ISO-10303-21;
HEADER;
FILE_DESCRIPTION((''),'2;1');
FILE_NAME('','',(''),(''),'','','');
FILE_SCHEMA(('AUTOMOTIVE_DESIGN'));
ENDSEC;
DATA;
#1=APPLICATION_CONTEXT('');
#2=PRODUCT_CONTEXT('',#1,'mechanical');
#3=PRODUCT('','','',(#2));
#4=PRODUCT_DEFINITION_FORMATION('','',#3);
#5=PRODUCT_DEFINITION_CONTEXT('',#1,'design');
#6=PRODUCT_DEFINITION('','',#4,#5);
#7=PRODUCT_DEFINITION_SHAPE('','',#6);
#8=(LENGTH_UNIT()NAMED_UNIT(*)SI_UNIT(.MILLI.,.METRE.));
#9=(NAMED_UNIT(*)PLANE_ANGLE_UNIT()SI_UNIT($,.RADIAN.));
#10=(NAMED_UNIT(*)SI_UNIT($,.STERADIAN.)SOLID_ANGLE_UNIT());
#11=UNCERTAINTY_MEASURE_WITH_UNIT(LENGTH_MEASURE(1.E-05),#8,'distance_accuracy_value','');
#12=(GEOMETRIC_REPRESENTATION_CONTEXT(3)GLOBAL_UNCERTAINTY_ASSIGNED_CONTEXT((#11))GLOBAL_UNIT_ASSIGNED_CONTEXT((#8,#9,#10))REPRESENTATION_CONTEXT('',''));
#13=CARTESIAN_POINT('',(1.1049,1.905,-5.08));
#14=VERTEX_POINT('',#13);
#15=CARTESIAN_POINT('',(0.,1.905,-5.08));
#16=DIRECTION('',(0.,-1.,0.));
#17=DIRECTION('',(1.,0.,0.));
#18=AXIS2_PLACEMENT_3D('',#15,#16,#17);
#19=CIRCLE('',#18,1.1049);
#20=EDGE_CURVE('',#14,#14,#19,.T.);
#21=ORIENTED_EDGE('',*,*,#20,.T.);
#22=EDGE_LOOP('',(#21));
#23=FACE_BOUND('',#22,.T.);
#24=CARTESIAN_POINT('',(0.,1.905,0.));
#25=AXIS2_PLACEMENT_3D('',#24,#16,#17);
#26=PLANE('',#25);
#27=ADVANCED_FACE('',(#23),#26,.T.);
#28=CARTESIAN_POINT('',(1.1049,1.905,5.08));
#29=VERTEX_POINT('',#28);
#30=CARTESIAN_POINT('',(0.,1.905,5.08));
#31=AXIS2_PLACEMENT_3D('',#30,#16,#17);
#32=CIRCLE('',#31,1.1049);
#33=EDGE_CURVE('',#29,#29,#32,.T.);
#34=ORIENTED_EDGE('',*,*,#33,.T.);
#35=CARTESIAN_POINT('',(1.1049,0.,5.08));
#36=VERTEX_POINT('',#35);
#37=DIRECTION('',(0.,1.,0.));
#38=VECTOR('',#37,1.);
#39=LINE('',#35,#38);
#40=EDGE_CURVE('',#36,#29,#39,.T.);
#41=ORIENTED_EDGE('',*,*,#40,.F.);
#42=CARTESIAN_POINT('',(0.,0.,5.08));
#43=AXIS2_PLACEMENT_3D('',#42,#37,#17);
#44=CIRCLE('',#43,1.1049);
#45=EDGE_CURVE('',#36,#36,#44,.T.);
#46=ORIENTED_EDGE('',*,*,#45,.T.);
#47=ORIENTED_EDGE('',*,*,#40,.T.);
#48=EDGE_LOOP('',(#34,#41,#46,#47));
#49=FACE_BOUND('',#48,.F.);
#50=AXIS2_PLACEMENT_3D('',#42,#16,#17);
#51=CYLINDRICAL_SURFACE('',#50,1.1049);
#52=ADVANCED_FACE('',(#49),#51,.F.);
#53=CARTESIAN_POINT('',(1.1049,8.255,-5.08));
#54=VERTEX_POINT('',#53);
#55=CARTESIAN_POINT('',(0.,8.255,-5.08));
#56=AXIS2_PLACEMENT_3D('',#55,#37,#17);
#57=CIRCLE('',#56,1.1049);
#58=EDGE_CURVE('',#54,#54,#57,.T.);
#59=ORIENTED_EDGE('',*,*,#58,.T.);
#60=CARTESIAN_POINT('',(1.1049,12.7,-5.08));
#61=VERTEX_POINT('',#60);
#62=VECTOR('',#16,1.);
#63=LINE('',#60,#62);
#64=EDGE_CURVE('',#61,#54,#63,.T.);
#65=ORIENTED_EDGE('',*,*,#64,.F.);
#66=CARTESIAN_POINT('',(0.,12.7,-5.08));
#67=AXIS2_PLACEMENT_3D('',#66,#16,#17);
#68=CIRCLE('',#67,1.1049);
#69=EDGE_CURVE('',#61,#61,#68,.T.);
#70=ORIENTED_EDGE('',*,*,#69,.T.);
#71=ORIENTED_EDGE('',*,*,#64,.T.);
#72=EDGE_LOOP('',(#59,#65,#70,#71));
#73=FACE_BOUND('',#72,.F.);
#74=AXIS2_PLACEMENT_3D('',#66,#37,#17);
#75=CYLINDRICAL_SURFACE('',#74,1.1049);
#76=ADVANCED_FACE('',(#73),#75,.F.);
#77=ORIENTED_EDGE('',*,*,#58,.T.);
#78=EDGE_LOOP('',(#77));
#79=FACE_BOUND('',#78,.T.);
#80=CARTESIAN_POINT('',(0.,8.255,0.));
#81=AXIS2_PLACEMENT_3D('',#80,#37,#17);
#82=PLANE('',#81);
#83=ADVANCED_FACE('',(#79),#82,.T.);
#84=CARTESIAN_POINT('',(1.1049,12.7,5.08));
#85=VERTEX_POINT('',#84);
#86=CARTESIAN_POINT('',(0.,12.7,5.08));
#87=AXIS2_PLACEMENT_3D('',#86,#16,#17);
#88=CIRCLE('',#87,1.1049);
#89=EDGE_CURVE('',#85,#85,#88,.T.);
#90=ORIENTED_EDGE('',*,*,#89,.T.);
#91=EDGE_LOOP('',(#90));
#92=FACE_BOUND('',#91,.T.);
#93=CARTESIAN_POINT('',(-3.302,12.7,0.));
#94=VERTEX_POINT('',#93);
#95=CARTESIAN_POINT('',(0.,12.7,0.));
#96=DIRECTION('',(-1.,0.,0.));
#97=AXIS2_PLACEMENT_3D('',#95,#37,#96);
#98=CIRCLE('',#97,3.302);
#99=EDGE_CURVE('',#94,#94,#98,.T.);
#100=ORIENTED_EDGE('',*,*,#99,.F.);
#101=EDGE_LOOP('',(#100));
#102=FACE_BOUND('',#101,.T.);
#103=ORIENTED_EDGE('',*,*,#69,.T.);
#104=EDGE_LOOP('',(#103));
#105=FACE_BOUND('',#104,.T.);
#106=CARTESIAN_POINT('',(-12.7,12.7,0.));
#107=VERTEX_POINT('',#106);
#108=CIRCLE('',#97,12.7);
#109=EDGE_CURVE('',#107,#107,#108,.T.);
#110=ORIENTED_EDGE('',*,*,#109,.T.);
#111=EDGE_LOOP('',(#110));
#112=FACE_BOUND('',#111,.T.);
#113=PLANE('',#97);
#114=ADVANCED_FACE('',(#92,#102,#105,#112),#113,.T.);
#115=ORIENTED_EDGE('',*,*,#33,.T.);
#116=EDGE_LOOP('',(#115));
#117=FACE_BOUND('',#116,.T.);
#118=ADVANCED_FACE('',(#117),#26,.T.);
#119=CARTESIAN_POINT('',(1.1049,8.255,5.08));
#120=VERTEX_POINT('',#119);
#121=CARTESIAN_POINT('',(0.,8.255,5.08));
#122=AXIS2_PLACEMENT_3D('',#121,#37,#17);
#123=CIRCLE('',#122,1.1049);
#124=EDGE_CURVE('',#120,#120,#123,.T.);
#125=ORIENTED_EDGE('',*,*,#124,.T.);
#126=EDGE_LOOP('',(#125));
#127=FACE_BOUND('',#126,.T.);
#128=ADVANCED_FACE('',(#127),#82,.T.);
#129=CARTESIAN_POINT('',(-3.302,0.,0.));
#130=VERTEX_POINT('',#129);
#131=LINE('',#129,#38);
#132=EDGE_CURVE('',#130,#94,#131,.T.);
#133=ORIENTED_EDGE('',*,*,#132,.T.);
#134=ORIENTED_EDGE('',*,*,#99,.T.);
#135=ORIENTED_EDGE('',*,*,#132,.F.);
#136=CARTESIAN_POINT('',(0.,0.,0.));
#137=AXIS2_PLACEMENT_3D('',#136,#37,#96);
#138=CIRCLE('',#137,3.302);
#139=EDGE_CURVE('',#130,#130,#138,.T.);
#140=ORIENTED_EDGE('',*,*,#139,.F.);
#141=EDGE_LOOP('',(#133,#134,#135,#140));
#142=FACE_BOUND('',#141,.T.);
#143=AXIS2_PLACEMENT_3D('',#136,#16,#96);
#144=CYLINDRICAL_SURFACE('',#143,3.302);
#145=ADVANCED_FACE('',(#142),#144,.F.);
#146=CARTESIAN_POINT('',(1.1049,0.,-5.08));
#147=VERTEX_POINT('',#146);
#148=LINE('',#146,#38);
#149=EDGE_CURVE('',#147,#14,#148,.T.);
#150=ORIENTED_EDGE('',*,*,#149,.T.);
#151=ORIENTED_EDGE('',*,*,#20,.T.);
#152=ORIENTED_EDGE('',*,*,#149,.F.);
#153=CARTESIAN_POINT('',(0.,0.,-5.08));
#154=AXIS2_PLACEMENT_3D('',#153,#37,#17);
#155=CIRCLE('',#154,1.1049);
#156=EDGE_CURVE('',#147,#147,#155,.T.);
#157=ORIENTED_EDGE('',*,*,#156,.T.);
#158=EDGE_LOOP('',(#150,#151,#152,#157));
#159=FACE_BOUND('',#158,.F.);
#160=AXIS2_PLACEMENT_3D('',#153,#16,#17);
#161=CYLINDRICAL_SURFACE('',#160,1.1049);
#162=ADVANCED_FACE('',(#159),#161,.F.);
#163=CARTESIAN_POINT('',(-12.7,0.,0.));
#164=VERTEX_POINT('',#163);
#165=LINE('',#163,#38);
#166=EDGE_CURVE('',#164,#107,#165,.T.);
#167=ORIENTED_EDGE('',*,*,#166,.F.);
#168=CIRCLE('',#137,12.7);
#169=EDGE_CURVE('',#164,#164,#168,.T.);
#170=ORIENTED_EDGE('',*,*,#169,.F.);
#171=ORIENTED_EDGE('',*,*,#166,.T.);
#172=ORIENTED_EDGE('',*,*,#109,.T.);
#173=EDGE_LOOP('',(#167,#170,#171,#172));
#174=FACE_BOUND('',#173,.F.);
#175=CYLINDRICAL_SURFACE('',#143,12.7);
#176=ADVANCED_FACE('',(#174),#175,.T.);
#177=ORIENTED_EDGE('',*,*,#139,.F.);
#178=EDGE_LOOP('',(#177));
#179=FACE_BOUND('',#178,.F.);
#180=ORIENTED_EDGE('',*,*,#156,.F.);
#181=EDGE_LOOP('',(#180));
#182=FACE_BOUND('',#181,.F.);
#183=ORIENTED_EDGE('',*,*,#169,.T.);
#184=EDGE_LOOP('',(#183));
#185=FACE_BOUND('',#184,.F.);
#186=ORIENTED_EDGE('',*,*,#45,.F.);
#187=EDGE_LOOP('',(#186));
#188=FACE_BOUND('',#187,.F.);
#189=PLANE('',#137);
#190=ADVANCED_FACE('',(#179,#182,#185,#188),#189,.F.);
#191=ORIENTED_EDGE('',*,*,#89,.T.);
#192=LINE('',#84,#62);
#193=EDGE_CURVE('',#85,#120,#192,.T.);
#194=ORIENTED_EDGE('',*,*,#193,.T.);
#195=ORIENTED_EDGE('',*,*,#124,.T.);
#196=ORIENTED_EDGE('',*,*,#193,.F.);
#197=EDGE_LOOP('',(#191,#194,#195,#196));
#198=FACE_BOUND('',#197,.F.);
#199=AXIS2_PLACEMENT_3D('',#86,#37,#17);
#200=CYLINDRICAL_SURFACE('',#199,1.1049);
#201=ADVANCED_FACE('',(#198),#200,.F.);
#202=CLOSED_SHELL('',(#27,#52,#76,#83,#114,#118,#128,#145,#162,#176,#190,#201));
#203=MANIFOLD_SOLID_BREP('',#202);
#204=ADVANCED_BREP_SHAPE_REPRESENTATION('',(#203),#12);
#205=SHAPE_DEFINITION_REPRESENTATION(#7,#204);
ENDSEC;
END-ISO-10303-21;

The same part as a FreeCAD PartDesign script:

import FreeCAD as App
import Part
import Sketcher

V = App.Vector
Q = App.Units.Quantity

doc = App.newDocument("Part")
body = doc.addObject("PartDesign::Body", "Body")

sketch1 = body.newObject("Sketcher::SketchObject", "Sketch")
sketch1.AttachmentSupport = (doc.getObject("XZ_Plane"), [""])
sketch1.MapMode = "FlatFace"
sketch1.addGeometry([
    Part.Circle(V(0, 0, 0), V(0, 0, 1), 12.7),
    Part.Circle(V(0, 0, 0), V(0, 0, 1), 3.3),
], False)
sketch1.addConstraint([
    Sketcher.Constraint("Coincident", 0, 3, -1, 1),
    Sketcher.Constraint("Coincident", 1, 3, -1, 1),
    Sketcher.Constraint("Diameter", 0, Q("1 in")),
    Sketcher.Constraint("Diameter", 1, Q("0.26 in")),
])
pad1 = body.newObject("PartDesign::Pad", "Pad")
pad1.Profile = sketch1
pad1.Length = Q("0.5 in")
pad1.Reversed = True

sketch2 = body.newObject("Sketcher::SketchObject", "Sketch001")
sketch2.AttachmentSupport = (doc.getObject("XZ_Plane"), [""])
sketch2.MapMode = "FlatFace"
sketch2.AttachmentOffset = App.Placement(V(0, 0, -0.5 * 25.4), App.Rotation())
sketch2.addGeometry([
    Part.Circle(V(0, 5.1, 0), V(0, 0, 1), 1.1),
    Part.Circle(V(0, -5.1, 0), V(0, 0, 1), 1.1),
], False)
sketch2.addConstraint([
    Sketcher.Constraint("Equal", 0, 1),
    Sketcher.Constraint("Symmetric", 0, 3, 1, 3, -1, 1),
    Sketcher.Constraint("PointOnObject", 0, 3, -2),
    Sketcher.Constraint("Diameter", 0, Q("0.087 in")),
    Sketcher.Constraint("DistanceY", -1, 1, 0, 3, Q("0.2 in")),
])
pocket1 = body.newObject("PartDesign::Pocket", "Pocket")
pocket1.Profile = sketch2
pocket1.Length = Q("0.175 in")
pocket1.Reversed = True

sketch3 = body.newObject("Sketcher::SketchObject", "Sketch002")
sketch3.AttachmentSupport = (doc.getObject("XZ_Plane"), [""])
sketch3.MapMode = "FlatFace"
sketch3.addGeometry([
    Part.Circle(V(0, 5.1, 0), V(0, 0, 1), 1.1),
    Part.Circle(V(0, -5.1, 0), V(0, 0, 1), 1.1),
], False)
sketch3.addConstraint([
    Sketcher.Constraint("Equal", 0, 1),
    Sketcher.Constraint("Symmetric", 0, 3, 1, 3, -1, 1),
    Sketcher.Constraint("PointOnObject", 0, 3, -2),
    Sketcher.Constraint("Diameter", 0, Q("0.087 in")),
    Sketcher.Constraint("DistanceY", -1, 1, 0, 3, Q("0.2 in")),
])
pocket2 = body.newObject("PartDesign::Pocket", "Pocket001")
pocket2.Profile = sketch3
pocket2.Length = Q("0.075 in")

doc.recompute()
